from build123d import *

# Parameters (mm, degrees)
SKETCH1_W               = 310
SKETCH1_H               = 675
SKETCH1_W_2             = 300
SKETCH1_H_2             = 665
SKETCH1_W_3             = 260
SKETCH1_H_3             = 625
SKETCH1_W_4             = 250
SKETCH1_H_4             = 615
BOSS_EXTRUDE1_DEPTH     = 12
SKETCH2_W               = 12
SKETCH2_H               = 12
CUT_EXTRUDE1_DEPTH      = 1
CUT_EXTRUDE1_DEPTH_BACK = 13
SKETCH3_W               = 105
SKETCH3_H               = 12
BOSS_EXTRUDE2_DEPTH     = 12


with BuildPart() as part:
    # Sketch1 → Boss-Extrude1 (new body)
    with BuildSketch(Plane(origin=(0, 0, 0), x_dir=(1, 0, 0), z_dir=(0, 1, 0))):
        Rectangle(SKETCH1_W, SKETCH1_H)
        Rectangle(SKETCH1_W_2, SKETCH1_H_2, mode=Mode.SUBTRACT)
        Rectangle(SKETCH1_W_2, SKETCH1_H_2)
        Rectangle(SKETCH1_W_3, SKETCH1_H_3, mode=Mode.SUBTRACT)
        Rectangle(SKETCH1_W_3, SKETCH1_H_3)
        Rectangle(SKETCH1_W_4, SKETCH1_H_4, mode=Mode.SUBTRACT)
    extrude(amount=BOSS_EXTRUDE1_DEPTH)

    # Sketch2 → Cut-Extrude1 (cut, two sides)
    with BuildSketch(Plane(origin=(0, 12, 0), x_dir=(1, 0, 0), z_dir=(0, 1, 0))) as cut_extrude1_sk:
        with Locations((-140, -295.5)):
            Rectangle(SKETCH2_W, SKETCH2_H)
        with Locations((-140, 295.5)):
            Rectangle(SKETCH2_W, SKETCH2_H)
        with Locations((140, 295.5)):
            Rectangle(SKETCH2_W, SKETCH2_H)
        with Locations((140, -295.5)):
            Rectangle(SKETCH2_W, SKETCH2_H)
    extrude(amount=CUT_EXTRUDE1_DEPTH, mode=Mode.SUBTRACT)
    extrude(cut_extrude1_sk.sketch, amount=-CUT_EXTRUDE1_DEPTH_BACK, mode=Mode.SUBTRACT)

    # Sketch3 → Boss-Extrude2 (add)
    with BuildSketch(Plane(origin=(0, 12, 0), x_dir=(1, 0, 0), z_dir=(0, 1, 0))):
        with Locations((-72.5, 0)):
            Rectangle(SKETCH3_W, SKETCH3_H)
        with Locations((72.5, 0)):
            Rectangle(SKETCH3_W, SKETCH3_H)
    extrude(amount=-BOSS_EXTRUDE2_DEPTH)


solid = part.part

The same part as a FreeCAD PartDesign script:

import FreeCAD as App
import Part
import Sketcher
Q = App.Units.Quantity

doc = App.newDocument("Part")
body = doc.addObject("PartDesign::Body", "Body")

sketch1 = body.newObject("Sketcher::SketchObject", "Sketch")
sketch1.AttachmentSupport = (doc.getObject("XZ_Plane"), [""])
sketch1.MapMode = "FlatFace"
sketch1.addGeometry([
    Part.LineSegment(App.Vector(-155, -338, 0), App.Vector(-155, 338, 0)),
    Part.LineSegment(App.Vector(-155, 338, 0), App.Vector(155, 338, 0)),
    Part.LineSegment(App.Vector(155, 338, 0), App.Vector(155, -338, 0)),
    Part.LineSegment(App.Vector(155, -338, 0), App.Vector(-155, -338, 0)),
    Part.LineSegment(App.Vector(125, 308, 0), App.Vector(-125, 308, 0)),
    Part.LineSegment(App.Vector(-125, 308, 0), App.Vector(-125, -308, 0)),
    Part.LineSegment(App.Vector(-125, -308, 0), App.Vector(125, -308, 0)),
    Part.LineSegment(App.Vector(125, -308, 0), App.Vector(125, 308, 0)),
], False)
sketch1.addConstraint([
    Sketcher.Constraint("Coincident", 0, 2, 1, 1),
    Sketcher.Constraint("Coincident", 1, 2, 2, 1),
    Sketcher.Constraint("Coincident", 2, 2, 3, 1),
    Sketcher.Constraint("Coincident", 3, 2, 0, 1),
    Sketcher.Constraint("Coincident", 4, 2, 5, 1),
    Sketcher.Constraint("Coincident", 5, 2, 6, 1),
    Sketcher.Constraint("Coincident", 6, 2, 7, 1),
    Sketcher.Constraint("Coincident", 7, 2, 4, 1),
    Sketcher.Constraint("Vertical", 0),
    Sketcher.Constraint("Horizontal", 1),
    Sketcher.Constraint("Vertical", 2),
    Sketcher.Constraint("Horizontal", 3),
    Sketcher.Constraint("Horizontal", 4),
    Sketcher.Constraint("Vertical", 5),
    Sketcher.Constraint("Horizontal", 6),
    Sketcher.Constraint("Vertical", 7),
    Sketcher.Constraint("Symmetric", 0, 2, 2, 2, -1, 1),
    Sketcher.Constraint("Symmetric", 4, 2, 6, 2, -1, 1),
    Sketcher.Constraint("DistanceX", 1, 1, 1, 2, Q("310 mm")),
    Sketcher.Constraint("DistanceX", 4, 2, 4, 1, Q("250 mm")),
    Sketcher.Constraint("DistanceY", 0, 1, 0, 2, Q("675 mm")),
    Sketcher.Constraint("DistanceY", 5, 2, 5, 1, Q("615 mm")),
])
pad1 = body.newObject("PartDesign::Pad", "Pad")
pad1.Profile = sketch1
pad1.Length = 12
pad1.Reversed = True

sketch2 = body.newObject("Sketcher::SketchObject", "Sketch001")
sketch2.AttachmentSupport = (doc.getObject("XZ_Plane"), [""])
sketch2.MapMode = "FlatFace"
sketch2.AttachmentOffset = App.Placement(App.Vector(0, 0, -12), App.Rotation())
sketch2.addGeometry([
    Part.LineSegment(App.Vector(-146, 290, 0), App.Vector(-146, 302, 0)),
    Part.LineSegment(App.Vector(-146, 302, 0), App.Vector(-134, 302, 0)),
    Part.LineSegment(App.Vector(-134, 302, 0), App.Vector(-134, 290, 0)),
    Part.LineSegment(App.Vector(-134, 290, 0), App.Vector(-146, 290, 0)),
    Part.LineSegment(App.Vector(-146, -302, 0), App.Vector(-146, -290, 0)),
    Part.LineSegment(App.Vector(-146, -290, 0), App.Vector(-134, -290, 0)),
    Part.LineSegment(App.Vector(-134, -290, 0), App.Vector(-134, -302, 0)),
    Part.LineSegment(App.Vector(-134, -302, 0), App.Vector(-146, -302, 0)),
    Part.LineSegment(App.Vector(134, -302, 0), App.Vector(134, -290, 0)),
    Part.LineSegment(App.Vector(134, -290, 0), App.Vector(146, -290, 0)),
    Part.LineSegment(App.Vector(146, -290, 0), App.Vector(146, -302, 0)),
    Part.LineSegment(App.Vector(146, -302, 0), App.Vector(134, -302, 0)),
    Part.LineSegment(App.Vector(134, 290, 0), App.Vector(134, 302, 0)),
    Part.LineSegment(App.Vector(134, 302, 0), App.Vector(146, 302, 0)),
    Part.LineSegment(App.Vector(146, 302, 0), App.Vector(146, 290, 0)),
    Part.LineSegment(App.Vector(146, 290, 0), App.Vector(134, 290, 0)),
], False)
sketch2.addConstraint([
    Sketcher.Constraint("Coincident", 0, 2, 1, 1),
    Sketcher.Constraint("Coincident", 1, 2, 2, 1),
    Sketcher.Constraint("Coincident", 2, 2, 3, 1),
    Sketcher.Constraint("Coincident", 3, 2, 0, 1),
    Sketcher.Constraint("Coincident", 4, 2, 5, 1),
    Sketcher.Constraint("Coincident", 5, 2, 6, 1),
    Sketcher.Constraint("Coincident", 6, 2, 7, 1),
    Sketcher.Constraint("Coincident", 7, 2, 4, 1),
    Sketcher.Constraint("Coincident", 8, 2, 9, 1),
    Sketcher.Constraint("Coincident", 9, 2, 10, 1),
    Sketcher.Constraint("Coincident", 10, 2, 11, 1),
    Sketcher.Constraint("Coincident", 11, 2, 8, 1),
    Sketcher.Constraint("Coincident", 12, 2, 13, 1),
    Sketcher.Constraint("Coincident", 13, 2, 14, 1),
    Sketcher.Constraint("Coincident", 14, 2, 15, 1),
    Sketcher.Constraint("Coincident", 15, 2, 12, 1),
    Sketcher.Constraint("Vertical", 0),
    Sketcher.Constraint("Horizontal", 1),
    Sketcher.Constraint("Vertical", 2),
    Sketcher.Constraint("Horizontal", 3),
    Sketcher.Constraint("Vertical", 4),
    Sketcher.Constraint("Horizontal", 5),
    Sketcher.Constraint("Vertical", 6),
    Sketcher.Constraint("Horizontal", 7),
    Sketcher.Constraint("Vertical", 8),
    Sketcher.Constraint("Horizontal", 9),
    Sketcher.Constraint("Vertical", 10),
    Sketcher.Constraint("Horizontal", 11),
    Sketcher.Constraint("Vertical", 12),
    Sketcher.Constraint("Horizontal", 13),
    Sketcher.Constraint("Vertical", 14),
    Sketcher.Constraint("Horizontal", 15),
    Sketcher.Constraint("Symmetric", 2, 2, 8, 2, -1, 1),
    Sketcher.Constraint("Symmetric", 0, 2, 10, 2, -1, 1),
    Sketcher.Constraint("Symmetric", 6, 2, 12, 2, -1, 1),
    Sketcher.Constraint("Symmetric", 4, 2, 14, 2, -1, 1),
    Sketcher.Constraint("Symmetric", 5, 2, 8, 2, -2),
    Sketcher.Constraint("Symmetric", 7, 2, 10, 2, -2),
    Sketcher.Constraint("Equal", 15, 0),
    Sketcher.Constraint("DistanceX", 1, 1, 1, 2, Q("12 mm")),
    Sketcher.Constraint("DistanceX", 0, 2, -1, 1, Q("146 mm")),
    Sketcher.Constraint("DistanceY", 4, 2, 3, 2, Q("579 mm")),
])
pocket1 = body.newObject("PartDesign::Pocket", "Pocket")
pocket1.Profile = sketch2
pocket1.Type = "ThroughAll"
pocket1.Midplane = True

sketch3 = body.newObject("Sketcher::SketchObject", "Sketch002")
sketch3.AttachmentSupport = (doc.getObject("XZ_Plane"), [""])
sketch3.MapMode = "FlatFace"
sketch3.AttachmentOffset = App.Placement(App.Vector(0, 0, -12), App.Rotation())
sketch3.addGeometry([
    Part.LineSegment(App.Vector(-125, -6, 0), App.Vector(-125, 6, 0)),
    Part.LineSegment(App.Vector(-125, 6, 0), App.Vector(-20, 6, 0)),
    Part.LineSegment(App.Vector(-20, 6, 0), App.Vector(-20, -6, 0)),
    Part.LineSegment(App.Vector(-20, -6, 0), App.Vector(-125, -6, 0)),
    Part.LineSegment(App.Vector(20, -6, 0), App.Vector(20, 6, 0)),
    Part.LineSegment(App.Vector(20, 6, 0), App.Vector(125, 6, 0)),
    Part.LineSegment(App.Vector(125, 6, 0), App.Vector(125, -6, 0)),
    Part.LineSegment(App.Vector(125, -6, 0), App.Vector(20, -6, 0)),
], False)
sketch3.addConstraint([
    Sketcher.Constraint("Coincident", 0, 2, 1, 1),
    Sketcher.Constraint("Coincident", 1, 2, 2, 1),
    Sketcher.Constraint("Coincident", 2, 2, 3, 1),
    Sketcher.Constraint("Coincident", 3, 2, 0, 1),
    Sketcher.Constraint("Coincident", 4, 2, 5, 1),
    Sketcher.Constraint("Coincident", 5, 2, 6, 1),
    Sketcher.Constraint("Coincident", 6, 2, 7, 1),
    Sketcher.Constraint("Coincident", 7, 2, 4, 1),
    Sketcher.Constraint("Vertical", 0),
    Sketcher.Constraint("Horizontal", 1),
    Sketcher.Constraint("Vertical", 2),
    Sketcher.Constraint("Horizontal", 3),
    Sketcher.Constraint("Vertical", 4),
    Sketcher.Constraint("Horizontal", 5),
    Sketcher.Constraint("Vertical", 6),
    Sketcher.Constraint("Horizontal", 7),
    Sketcher.Constraint("Symmetric", 2, 2, 4, 2, -1, 1),
    Sketcher.Constraint("Symmetric", 0, 2, 6, 2, -1, 1),
    Sketcher.Constraint("Horizontal", 1, 2, 4, 2),
    Sketcher.Constraint("DistanceX", 1, 1, 1, 2, Q("105 mm")),
    Sketcher.Constraint("DistanceY", 0, 1, 0, 2, Q("12 mm")),
    Sketcher.Constraint("DistanceX", 0, 2, -1, 1, Q("125 mm")),
])
pad2 = body.newObject("PartDesign::Pad", "Pad001")
pad2.Profile = sketch3
pad2.Length = 12

doc.recompute()
